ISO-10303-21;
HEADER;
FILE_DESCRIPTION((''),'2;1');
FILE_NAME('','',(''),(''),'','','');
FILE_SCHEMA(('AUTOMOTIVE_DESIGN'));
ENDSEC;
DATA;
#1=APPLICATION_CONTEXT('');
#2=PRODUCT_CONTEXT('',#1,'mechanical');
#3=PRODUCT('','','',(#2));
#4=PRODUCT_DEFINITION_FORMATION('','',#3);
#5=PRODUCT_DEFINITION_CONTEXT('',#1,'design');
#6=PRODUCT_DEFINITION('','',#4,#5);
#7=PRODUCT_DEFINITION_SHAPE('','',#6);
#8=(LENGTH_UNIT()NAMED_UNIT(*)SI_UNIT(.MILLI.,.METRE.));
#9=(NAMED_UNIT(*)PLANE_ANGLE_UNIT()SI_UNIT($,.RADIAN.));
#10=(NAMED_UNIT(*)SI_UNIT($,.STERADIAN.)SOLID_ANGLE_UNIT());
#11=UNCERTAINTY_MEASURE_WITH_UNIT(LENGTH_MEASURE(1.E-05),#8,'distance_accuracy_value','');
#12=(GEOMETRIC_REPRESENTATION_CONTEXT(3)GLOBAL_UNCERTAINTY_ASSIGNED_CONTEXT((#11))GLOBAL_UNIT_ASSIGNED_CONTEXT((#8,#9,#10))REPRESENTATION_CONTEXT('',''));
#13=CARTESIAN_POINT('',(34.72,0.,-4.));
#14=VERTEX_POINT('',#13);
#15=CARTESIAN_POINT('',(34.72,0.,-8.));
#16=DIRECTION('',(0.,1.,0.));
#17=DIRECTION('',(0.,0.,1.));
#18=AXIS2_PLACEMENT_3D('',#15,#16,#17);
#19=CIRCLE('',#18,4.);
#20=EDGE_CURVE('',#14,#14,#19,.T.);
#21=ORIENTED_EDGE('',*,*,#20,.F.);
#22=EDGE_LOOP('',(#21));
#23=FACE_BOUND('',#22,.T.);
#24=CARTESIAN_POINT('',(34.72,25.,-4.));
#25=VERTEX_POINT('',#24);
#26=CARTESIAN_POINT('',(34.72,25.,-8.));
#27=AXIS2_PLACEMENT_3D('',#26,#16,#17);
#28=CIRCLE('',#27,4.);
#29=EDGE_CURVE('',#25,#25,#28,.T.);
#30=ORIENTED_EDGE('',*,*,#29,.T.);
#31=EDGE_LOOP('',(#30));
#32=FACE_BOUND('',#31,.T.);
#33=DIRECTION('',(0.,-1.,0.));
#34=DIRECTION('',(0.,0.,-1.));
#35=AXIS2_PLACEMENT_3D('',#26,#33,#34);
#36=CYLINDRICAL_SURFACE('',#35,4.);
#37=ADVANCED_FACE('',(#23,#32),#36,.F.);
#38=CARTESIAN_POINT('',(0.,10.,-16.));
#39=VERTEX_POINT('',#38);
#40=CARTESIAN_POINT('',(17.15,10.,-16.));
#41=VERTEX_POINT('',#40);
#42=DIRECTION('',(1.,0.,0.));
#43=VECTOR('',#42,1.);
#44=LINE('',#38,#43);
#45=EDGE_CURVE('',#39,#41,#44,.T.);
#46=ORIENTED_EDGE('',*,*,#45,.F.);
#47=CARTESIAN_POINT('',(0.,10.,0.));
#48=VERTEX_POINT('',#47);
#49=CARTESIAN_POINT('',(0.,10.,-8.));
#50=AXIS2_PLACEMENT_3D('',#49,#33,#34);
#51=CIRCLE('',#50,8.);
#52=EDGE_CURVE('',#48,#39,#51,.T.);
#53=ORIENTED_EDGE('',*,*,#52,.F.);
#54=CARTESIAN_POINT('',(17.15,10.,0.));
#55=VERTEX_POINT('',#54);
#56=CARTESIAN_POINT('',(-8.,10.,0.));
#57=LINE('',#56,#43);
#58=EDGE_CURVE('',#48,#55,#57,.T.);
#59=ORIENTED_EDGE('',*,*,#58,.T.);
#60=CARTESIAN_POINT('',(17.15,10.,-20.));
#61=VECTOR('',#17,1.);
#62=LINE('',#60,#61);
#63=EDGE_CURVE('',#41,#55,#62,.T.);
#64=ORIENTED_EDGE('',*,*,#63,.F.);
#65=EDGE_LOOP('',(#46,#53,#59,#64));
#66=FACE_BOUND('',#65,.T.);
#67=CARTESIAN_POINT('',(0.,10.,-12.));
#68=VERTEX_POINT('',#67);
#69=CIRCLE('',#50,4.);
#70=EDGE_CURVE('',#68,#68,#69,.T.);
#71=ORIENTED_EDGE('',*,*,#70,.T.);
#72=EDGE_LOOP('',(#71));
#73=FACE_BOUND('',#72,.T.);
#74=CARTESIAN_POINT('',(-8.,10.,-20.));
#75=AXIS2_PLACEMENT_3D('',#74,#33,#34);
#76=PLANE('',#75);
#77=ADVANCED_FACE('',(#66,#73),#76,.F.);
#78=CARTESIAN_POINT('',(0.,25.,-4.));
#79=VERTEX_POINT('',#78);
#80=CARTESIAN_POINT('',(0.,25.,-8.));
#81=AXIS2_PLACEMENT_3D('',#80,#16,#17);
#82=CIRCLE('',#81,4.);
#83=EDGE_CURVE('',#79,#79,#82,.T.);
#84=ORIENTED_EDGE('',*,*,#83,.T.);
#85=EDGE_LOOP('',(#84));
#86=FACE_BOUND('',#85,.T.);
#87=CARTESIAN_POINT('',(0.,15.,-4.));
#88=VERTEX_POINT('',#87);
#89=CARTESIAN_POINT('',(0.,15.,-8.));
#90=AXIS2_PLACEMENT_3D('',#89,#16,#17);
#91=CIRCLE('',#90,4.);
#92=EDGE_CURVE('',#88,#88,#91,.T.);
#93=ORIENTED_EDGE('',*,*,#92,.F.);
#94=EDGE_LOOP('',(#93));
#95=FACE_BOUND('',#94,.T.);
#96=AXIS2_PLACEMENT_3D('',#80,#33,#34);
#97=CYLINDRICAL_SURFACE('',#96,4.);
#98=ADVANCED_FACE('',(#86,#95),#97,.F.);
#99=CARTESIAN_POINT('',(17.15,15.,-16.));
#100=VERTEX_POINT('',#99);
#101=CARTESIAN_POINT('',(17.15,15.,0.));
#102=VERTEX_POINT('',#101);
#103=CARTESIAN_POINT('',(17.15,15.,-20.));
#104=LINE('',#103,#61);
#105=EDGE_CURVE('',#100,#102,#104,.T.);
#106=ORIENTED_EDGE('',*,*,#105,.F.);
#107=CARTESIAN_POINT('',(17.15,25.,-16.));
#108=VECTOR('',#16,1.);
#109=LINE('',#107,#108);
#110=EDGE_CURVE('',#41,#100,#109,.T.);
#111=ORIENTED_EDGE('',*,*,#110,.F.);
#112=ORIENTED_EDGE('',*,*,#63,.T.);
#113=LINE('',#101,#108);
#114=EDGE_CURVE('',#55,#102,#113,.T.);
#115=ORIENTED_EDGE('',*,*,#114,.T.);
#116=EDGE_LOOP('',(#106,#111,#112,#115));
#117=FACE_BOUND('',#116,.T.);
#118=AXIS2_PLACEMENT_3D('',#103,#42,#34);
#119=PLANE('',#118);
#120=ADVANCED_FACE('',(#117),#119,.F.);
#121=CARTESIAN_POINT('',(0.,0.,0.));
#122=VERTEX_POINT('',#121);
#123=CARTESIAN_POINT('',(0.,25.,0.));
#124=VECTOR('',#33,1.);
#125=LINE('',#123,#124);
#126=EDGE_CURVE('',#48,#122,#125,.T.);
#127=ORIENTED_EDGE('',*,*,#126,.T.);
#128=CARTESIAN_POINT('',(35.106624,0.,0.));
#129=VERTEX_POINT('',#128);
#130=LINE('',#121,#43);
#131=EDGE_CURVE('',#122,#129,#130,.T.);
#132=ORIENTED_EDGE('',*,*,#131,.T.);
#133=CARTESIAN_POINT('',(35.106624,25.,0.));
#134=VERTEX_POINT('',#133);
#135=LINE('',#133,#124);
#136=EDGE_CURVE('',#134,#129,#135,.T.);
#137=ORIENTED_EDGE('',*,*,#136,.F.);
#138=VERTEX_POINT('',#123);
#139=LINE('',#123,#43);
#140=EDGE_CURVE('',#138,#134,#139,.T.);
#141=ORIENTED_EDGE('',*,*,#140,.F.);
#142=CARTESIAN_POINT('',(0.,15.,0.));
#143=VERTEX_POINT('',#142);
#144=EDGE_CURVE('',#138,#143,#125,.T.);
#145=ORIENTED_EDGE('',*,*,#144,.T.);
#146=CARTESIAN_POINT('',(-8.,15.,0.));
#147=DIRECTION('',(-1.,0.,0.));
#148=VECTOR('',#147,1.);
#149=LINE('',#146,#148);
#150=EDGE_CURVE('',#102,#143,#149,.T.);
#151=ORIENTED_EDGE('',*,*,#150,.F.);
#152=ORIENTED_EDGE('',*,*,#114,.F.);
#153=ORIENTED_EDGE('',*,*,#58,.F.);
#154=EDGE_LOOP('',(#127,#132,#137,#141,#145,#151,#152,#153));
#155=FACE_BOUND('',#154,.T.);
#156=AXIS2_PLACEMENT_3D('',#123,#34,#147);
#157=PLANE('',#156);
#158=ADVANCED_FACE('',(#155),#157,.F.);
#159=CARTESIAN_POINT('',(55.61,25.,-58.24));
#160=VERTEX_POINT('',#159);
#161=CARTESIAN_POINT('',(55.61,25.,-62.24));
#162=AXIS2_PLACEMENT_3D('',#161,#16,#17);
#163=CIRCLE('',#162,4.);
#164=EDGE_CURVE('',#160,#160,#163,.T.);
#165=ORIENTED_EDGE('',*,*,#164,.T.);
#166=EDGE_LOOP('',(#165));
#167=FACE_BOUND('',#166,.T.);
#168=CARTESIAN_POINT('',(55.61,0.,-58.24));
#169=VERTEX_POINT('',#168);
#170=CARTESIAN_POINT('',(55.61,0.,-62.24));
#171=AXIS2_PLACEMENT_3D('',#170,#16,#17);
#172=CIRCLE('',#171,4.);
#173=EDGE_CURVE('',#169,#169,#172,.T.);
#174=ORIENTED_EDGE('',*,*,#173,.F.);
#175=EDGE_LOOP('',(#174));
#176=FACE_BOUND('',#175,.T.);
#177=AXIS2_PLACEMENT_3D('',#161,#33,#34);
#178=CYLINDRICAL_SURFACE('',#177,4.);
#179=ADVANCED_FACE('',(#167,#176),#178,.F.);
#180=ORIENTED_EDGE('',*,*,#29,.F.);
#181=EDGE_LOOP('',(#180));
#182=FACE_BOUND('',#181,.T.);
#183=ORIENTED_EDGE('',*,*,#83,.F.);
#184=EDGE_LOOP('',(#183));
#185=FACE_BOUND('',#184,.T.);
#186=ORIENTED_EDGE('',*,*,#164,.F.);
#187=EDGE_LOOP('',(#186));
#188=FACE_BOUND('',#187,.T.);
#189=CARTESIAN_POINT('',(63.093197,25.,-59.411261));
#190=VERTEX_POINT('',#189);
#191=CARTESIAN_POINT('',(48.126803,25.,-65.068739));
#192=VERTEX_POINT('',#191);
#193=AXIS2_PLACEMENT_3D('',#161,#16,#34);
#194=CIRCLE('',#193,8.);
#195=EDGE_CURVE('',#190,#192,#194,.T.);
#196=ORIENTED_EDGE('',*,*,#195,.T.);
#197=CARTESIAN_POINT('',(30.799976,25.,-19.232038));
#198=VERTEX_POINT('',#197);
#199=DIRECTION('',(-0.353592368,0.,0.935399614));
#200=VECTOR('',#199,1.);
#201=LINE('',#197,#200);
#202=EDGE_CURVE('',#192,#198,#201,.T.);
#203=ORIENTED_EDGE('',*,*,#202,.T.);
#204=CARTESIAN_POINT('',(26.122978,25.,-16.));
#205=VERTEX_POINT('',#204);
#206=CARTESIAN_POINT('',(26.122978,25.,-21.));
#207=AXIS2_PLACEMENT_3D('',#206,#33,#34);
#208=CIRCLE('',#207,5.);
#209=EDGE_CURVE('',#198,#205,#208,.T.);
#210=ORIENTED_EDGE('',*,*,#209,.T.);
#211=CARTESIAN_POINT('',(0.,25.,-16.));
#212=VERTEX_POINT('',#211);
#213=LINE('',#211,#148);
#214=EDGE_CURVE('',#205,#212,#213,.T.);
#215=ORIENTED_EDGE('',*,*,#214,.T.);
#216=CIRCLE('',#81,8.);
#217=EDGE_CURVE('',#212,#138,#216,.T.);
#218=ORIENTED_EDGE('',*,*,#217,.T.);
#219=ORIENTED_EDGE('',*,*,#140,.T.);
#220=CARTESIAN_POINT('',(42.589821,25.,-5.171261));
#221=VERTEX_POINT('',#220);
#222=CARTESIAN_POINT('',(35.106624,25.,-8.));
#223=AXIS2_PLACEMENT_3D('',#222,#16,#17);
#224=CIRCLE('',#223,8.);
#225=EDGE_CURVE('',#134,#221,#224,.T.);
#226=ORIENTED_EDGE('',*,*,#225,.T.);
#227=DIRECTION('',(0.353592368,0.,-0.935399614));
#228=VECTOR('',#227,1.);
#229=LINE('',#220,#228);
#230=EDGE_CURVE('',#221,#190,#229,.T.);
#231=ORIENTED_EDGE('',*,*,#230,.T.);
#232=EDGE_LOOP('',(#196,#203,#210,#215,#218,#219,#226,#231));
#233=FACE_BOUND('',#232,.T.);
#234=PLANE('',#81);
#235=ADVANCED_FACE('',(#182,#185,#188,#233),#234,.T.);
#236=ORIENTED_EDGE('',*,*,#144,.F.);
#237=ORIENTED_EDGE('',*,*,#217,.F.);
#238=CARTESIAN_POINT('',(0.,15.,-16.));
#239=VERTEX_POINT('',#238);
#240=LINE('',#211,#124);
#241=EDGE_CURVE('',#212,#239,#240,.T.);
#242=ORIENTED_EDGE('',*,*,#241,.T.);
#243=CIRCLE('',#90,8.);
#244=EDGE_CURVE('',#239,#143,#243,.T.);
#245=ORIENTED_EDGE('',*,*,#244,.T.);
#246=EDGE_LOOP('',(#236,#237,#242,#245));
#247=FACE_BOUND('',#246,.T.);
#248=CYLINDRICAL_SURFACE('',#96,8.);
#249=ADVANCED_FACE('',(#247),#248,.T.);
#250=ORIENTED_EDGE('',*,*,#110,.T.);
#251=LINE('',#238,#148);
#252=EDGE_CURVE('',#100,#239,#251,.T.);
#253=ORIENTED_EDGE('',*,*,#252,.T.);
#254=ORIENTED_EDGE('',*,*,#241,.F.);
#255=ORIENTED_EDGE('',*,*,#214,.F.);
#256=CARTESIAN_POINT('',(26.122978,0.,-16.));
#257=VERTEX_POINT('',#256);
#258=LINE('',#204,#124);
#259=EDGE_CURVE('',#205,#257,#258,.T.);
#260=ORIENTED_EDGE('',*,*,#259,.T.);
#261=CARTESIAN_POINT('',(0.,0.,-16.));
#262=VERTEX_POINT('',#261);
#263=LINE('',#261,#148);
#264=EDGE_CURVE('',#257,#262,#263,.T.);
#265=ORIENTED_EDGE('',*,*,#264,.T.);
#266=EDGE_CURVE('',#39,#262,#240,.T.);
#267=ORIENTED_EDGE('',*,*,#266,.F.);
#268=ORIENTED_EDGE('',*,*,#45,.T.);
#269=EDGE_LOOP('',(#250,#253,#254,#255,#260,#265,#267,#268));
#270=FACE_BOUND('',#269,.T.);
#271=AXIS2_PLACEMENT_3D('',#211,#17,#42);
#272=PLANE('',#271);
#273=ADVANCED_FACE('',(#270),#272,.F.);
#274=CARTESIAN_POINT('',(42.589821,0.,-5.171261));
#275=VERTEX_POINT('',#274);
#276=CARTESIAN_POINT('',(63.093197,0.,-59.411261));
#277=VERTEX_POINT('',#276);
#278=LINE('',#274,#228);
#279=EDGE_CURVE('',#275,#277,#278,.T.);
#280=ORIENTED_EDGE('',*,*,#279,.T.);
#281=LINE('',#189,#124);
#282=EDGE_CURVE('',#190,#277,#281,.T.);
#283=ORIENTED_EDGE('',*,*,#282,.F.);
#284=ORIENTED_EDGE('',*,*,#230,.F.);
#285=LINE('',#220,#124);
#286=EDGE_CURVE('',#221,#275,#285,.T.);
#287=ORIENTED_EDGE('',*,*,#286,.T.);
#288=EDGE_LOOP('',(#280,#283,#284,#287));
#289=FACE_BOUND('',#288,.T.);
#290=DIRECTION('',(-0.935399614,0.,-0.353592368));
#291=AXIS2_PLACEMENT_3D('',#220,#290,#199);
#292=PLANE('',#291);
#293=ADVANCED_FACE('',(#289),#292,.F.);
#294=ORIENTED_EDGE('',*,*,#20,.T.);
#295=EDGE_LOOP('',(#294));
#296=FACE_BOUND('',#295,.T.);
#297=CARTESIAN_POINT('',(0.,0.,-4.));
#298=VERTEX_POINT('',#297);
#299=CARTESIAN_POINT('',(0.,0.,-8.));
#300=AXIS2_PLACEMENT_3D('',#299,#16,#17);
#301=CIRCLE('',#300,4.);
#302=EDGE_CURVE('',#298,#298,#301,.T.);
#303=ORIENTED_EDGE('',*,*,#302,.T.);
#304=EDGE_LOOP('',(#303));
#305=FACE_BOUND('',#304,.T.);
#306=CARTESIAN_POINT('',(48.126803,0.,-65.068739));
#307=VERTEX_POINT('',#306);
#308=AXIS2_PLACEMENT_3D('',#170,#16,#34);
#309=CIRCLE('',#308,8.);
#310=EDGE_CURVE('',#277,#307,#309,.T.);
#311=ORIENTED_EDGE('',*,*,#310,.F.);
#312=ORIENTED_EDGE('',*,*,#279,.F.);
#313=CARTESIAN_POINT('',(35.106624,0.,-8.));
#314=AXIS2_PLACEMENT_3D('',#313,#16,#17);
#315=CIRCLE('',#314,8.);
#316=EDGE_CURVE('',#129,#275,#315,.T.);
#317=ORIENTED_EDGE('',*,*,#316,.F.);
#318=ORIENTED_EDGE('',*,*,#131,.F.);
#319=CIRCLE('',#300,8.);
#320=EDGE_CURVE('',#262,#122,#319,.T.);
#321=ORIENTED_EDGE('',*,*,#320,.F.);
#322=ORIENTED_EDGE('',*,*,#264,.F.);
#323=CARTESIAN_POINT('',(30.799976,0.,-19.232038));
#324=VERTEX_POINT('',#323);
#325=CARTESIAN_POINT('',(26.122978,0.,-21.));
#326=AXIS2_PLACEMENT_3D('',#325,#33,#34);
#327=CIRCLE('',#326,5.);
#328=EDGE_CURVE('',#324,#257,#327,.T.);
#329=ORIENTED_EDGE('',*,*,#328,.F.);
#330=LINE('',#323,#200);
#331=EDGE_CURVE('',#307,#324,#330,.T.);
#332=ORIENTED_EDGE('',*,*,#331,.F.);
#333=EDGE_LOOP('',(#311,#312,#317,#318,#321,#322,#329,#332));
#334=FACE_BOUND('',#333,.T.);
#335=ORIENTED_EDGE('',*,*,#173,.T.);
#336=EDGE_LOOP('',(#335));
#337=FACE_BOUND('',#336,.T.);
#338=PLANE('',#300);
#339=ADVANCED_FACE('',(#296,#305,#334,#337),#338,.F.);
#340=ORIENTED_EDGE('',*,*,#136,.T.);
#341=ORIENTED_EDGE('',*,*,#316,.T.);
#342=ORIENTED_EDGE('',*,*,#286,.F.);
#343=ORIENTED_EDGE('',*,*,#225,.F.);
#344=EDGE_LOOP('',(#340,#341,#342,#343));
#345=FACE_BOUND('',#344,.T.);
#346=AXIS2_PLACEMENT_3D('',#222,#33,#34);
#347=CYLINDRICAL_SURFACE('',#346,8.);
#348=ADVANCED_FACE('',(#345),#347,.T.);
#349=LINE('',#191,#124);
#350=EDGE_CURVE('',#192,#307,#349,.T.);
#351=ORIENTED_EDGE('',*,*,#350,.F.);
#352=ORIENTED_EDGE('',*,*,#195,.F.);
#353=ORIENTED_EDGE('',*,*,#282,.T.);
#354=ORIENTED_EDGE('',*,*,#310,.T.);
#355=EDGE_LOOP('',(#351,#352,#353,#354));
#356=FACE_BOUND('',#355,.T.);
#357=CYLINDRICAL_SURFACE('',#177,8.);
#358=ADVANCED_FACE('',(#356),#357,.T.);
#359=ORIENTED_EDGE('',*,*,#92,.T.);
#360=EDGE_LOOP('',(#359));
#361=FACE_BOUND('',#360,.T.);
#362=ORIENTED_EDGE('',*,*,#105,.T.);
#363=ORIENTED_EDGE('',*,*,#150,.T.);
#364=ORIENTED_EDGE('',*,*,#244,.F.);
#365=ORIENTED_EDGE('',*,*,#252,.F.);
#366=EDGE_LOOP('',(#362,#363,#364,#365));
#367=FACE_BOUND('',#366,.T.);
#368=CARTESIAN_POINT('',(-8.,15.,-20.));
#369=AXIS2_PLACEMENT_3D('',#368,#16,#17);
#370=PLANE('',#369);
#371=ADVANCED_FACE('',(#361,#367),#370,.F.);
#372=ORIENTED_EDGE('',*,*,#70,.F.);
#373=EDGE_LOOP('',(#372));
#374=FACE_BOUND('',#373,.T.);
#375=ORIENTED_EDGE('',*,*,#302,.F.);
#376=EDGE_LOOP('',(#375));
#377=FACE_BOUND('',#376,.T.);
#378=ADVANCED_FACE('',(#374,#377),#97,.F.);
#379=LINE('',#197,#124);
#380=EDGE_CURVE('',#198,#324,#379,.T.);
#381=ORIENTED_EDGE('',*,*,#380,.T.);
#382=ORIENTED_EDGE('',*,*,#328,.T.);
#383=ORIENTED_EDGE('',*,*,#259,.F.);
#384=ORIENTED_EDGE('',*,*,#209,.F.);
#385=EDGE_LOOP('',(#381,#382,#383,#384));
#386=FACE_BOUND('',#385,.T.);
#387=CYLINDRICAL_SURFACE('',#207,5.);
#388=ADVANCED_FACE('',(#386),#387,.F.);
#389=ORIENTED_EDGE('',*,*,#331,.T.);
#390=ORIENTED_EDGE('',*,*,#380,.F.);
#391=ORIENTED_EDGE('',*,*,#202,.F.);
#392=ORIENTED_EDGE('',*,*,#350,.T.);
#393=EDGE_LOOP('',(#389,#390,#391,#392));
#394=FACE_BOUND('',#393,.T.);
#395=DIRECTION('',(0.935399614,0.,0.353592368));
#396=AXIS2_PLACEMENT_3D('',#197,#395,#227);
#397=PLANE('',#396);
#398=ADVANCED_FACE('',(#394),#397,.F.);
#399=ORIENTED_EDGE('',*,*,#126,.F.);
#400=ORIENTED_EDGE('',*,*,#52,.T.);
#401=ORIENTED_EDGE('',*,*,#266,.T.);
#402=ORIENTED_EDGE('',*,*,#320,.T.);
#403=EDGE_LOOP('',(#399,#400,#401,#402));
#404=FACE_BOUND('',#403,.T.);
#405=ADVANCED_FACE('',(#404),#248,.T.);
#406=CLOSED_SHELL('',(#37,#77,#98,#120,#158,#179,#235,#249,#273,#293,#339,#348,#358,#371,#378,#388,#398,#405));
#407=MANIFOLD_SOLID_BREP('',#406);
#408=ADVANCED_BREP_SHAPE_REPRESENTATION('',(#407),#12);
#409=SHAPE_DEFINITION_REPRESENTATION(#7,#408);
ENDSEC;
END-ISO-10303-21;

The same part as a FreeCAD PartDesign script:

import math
import FreeCAD as App
import Part
import Sketcher


def add_polygon(sketch, points):
    """Adds a closed chain of lines whose ends are joined by coincident constraints."""
    first, n = sketch.GeometryCount, len(points)
    for a, b in zip(points, points[1:] + points[:1]):
        sketch.addGeometry(Part.LineSegment(App.Vector(*a, 0), App.Vector(*b, 0)), False)
    for i in range(n):
        sketch.addConstraint(Sketcher.Constraint("Coincident", first + i, 2, first + (i + 1) % n, 1))

doc = App.newDocument("Part")
body = doc.addObject("PartDesign::Body", "Body")

sketch1 = body.newObject("Sketcher::SketchObject", "Sketch")
sketch1.AttachmentSupport = (doc.getObject("XZ_Plane"), [""])
sketch1.MapMode = "FlatFace"
sketch1.addGeometry(Part.LineSegment(App.Vector(0, 0, 0), App.Vector(35.1, 0, 0)), False)
sketch1.addGeometry(Part.ArcOfCircle(Part.Circle(App.Vector(35.1, -8, 0), App.Vector(0, 0, 1), 8), math.radians(21), math.radians(90)), False)
sketch1.addGeometry(Part.LineSegment(App.Vector(42.6, -5.2, 0), App.Vector(63.1, -59.4, 0)), False)
sketch1.addGeometry(Part.ArcOfCircle(Part.Circle(App.Vector(55.6, -62.2, 0), App.Vector(0, 0, 1), 8), math.radians(-159), math.radians(21)), False)
sketch1.addGeometry(Part.LineSegment(App.Vector(48.1, -65.1, 0), App.Vector(30.8, -19.2, 0)), False)
sketch1.addGeometry(Part.ArcOfCircle(Part.Circle(App.Vector(26.1, -21, 0), App.Vector(0, 0, 1), 5), math.radians(21), math.radians(90)), False)
sketch1.addGeometry(Part.LineSegment(App.Vector(26.1, -16, 0), App.Vector(0, -16, 0)), False)
sketch1.addGeometry(Part.ArcOfCircle(Part.Circle(App.Vector(0, -8, 0), App.Vector(0, 0, 1), 8), math.radians(90), math.radians(270)), False)
sketch1.addGeometry(Part.Circle(App.Vector(0, -8, 0), App.Vector(0, 0, 1), 4), False)
sketch1.addGeometry(Part.Circle(App.Vector(34.7, -8, 0), App.Vector(0, 0, 1), 4), False)
sketch1.addGeometry(Part.Circle(App.Vector(55.6, -62.2, 0), App.Vector(0, 0, 1), 4), False)
sketch1.addConstraint(Sketcher.Constraint("Tangent", 0, 2, 1, 2))
sketch1.addConstraint(Sketcher.Constraint("Tangent", 1, 1, 2, 1))
sketch1.addConstraint(Sketcher.Constraint("Tangent", 2, 2, 3, 2))
sketch1.addConstraint(Sketcher.Constraint("Tangent", 3, 1, 4, 1))
sketch1.addConstraint(Sketcher.Constraint("Tangent", 4, 2, 5, 1))
sketch1.addConstraint(Sketcher.Constraint("Tangent", 5, 2, 6, 1))
sketch1.addConstraint(Sketcher.Constraint("Tangent", 6, 2, 7, 2))
sketch1.addConstraint(Sketcher.Constraint("Tangent", 7, 1, 0, 1))
sketch1.addConstraint(Sketcher.Constraint("Horizontal", 0))
sketch1.addConstraint(Sketcher.Constraint("Horizontal", 6))
sketch1.addConstraint(Sketcher.Constraint("Coincident", 7, 1, -1, 1))
sketch1.addConstraint(Sketcher.Constraint("Coincident", 8, 3, 7, 3))
sketch1.addConstraint(Sketcher.Constraint("Coincident", 10, 3, 3, 3))
sketch1.addConstraint(Sketcher.Constraint("Equal", 1, 3))
sketch1.addConstraint(Sketcher.Constraint("Equal", 3, 7))
sketch1.addConstraint(Sketcher.Constraint("Equal", 8, 9))
sketch1.addConstraint(Sketcher.Constraint("Equal", 9, 10))
sketch1.addConstraint(Sketcher.Constraint("Parallel", 2, 4))
sketch1.addConstraint(Sketcher.Constraint("Horizontal", 8, 3, 9, 3))
sketch1.addConstraint(Sketcher.Constraint("Diameter", 8, 8.0))
sketch1.addConstraint(Sketcher.Constraint("Radius", 1, 8.0))
sketch1.addConstraint(Sketcher.Constraint("Radius", 5, 5.0))
sketch1.addConstraint(Sketcher.Constraint("DistanceX", -1, 1, 3, 3, 55.61))
sketch1.addConstraint(Sketcher.Constraint("DistanceY", 3, 3, -1, 1, 62.24))
sketch1.addConstraint(Sketcher.Constraint("DistanceX", -1, 1, 9, 3, 34.72))
sketch1.addConstraint(Sketcher.Constraint("DistanceX", 5, 3, 4, 2, 4.676998))
pad1 = body.newObject("PartDesign::Pad", "Pad")
pad1.Profile = sketch1
pad1.Length = 25
pad1.Reversed = True

sketch2 = body.newObject("Sketcher::SketchObject", "Sketch001")
sketch2.AttachmentSupport = (doc.getObject("XY_Plane"), [""])
sketch2.MapMode = "FlatFace"
add_polygon(sketch2, [(-8, 15), (-8, 10), (17, 10), (17, 15)])
sketch2.addConstraint(Sketcher.Constraint("Vertical", 0))
sketch2.addConstraint(Sketcher.Constraint("Horizontal", 1))
sketch2.addConstraint(Sketcher.Constraint("Vertical", 2))
sketch2.addConstraint(Sketcher.Constraint("Horizontal", 3))
sketch2.addConstraint(Sketcher.Constraint("DistanceY", 0, 2, 0, 1, 5.0))
sketch2.addConstraint(Sketcher.Constraint("DistanceX", 0, 2, -1, 1, 8.0))
sketch2.addConstraint(Sketcher.Constraint("DistanceY", -1, 1, 0, 2, 10.0))
sketch2.addConstraint(Sketcher.Constraint("DistanceX", 1, 1, 1, 2, 25.15))
pocket1 = body.newObject("PartDesign::Pocket", "Pocket")
pocket1.Profile = sketch2
pocket1.Length = 20

doc.recompute()
